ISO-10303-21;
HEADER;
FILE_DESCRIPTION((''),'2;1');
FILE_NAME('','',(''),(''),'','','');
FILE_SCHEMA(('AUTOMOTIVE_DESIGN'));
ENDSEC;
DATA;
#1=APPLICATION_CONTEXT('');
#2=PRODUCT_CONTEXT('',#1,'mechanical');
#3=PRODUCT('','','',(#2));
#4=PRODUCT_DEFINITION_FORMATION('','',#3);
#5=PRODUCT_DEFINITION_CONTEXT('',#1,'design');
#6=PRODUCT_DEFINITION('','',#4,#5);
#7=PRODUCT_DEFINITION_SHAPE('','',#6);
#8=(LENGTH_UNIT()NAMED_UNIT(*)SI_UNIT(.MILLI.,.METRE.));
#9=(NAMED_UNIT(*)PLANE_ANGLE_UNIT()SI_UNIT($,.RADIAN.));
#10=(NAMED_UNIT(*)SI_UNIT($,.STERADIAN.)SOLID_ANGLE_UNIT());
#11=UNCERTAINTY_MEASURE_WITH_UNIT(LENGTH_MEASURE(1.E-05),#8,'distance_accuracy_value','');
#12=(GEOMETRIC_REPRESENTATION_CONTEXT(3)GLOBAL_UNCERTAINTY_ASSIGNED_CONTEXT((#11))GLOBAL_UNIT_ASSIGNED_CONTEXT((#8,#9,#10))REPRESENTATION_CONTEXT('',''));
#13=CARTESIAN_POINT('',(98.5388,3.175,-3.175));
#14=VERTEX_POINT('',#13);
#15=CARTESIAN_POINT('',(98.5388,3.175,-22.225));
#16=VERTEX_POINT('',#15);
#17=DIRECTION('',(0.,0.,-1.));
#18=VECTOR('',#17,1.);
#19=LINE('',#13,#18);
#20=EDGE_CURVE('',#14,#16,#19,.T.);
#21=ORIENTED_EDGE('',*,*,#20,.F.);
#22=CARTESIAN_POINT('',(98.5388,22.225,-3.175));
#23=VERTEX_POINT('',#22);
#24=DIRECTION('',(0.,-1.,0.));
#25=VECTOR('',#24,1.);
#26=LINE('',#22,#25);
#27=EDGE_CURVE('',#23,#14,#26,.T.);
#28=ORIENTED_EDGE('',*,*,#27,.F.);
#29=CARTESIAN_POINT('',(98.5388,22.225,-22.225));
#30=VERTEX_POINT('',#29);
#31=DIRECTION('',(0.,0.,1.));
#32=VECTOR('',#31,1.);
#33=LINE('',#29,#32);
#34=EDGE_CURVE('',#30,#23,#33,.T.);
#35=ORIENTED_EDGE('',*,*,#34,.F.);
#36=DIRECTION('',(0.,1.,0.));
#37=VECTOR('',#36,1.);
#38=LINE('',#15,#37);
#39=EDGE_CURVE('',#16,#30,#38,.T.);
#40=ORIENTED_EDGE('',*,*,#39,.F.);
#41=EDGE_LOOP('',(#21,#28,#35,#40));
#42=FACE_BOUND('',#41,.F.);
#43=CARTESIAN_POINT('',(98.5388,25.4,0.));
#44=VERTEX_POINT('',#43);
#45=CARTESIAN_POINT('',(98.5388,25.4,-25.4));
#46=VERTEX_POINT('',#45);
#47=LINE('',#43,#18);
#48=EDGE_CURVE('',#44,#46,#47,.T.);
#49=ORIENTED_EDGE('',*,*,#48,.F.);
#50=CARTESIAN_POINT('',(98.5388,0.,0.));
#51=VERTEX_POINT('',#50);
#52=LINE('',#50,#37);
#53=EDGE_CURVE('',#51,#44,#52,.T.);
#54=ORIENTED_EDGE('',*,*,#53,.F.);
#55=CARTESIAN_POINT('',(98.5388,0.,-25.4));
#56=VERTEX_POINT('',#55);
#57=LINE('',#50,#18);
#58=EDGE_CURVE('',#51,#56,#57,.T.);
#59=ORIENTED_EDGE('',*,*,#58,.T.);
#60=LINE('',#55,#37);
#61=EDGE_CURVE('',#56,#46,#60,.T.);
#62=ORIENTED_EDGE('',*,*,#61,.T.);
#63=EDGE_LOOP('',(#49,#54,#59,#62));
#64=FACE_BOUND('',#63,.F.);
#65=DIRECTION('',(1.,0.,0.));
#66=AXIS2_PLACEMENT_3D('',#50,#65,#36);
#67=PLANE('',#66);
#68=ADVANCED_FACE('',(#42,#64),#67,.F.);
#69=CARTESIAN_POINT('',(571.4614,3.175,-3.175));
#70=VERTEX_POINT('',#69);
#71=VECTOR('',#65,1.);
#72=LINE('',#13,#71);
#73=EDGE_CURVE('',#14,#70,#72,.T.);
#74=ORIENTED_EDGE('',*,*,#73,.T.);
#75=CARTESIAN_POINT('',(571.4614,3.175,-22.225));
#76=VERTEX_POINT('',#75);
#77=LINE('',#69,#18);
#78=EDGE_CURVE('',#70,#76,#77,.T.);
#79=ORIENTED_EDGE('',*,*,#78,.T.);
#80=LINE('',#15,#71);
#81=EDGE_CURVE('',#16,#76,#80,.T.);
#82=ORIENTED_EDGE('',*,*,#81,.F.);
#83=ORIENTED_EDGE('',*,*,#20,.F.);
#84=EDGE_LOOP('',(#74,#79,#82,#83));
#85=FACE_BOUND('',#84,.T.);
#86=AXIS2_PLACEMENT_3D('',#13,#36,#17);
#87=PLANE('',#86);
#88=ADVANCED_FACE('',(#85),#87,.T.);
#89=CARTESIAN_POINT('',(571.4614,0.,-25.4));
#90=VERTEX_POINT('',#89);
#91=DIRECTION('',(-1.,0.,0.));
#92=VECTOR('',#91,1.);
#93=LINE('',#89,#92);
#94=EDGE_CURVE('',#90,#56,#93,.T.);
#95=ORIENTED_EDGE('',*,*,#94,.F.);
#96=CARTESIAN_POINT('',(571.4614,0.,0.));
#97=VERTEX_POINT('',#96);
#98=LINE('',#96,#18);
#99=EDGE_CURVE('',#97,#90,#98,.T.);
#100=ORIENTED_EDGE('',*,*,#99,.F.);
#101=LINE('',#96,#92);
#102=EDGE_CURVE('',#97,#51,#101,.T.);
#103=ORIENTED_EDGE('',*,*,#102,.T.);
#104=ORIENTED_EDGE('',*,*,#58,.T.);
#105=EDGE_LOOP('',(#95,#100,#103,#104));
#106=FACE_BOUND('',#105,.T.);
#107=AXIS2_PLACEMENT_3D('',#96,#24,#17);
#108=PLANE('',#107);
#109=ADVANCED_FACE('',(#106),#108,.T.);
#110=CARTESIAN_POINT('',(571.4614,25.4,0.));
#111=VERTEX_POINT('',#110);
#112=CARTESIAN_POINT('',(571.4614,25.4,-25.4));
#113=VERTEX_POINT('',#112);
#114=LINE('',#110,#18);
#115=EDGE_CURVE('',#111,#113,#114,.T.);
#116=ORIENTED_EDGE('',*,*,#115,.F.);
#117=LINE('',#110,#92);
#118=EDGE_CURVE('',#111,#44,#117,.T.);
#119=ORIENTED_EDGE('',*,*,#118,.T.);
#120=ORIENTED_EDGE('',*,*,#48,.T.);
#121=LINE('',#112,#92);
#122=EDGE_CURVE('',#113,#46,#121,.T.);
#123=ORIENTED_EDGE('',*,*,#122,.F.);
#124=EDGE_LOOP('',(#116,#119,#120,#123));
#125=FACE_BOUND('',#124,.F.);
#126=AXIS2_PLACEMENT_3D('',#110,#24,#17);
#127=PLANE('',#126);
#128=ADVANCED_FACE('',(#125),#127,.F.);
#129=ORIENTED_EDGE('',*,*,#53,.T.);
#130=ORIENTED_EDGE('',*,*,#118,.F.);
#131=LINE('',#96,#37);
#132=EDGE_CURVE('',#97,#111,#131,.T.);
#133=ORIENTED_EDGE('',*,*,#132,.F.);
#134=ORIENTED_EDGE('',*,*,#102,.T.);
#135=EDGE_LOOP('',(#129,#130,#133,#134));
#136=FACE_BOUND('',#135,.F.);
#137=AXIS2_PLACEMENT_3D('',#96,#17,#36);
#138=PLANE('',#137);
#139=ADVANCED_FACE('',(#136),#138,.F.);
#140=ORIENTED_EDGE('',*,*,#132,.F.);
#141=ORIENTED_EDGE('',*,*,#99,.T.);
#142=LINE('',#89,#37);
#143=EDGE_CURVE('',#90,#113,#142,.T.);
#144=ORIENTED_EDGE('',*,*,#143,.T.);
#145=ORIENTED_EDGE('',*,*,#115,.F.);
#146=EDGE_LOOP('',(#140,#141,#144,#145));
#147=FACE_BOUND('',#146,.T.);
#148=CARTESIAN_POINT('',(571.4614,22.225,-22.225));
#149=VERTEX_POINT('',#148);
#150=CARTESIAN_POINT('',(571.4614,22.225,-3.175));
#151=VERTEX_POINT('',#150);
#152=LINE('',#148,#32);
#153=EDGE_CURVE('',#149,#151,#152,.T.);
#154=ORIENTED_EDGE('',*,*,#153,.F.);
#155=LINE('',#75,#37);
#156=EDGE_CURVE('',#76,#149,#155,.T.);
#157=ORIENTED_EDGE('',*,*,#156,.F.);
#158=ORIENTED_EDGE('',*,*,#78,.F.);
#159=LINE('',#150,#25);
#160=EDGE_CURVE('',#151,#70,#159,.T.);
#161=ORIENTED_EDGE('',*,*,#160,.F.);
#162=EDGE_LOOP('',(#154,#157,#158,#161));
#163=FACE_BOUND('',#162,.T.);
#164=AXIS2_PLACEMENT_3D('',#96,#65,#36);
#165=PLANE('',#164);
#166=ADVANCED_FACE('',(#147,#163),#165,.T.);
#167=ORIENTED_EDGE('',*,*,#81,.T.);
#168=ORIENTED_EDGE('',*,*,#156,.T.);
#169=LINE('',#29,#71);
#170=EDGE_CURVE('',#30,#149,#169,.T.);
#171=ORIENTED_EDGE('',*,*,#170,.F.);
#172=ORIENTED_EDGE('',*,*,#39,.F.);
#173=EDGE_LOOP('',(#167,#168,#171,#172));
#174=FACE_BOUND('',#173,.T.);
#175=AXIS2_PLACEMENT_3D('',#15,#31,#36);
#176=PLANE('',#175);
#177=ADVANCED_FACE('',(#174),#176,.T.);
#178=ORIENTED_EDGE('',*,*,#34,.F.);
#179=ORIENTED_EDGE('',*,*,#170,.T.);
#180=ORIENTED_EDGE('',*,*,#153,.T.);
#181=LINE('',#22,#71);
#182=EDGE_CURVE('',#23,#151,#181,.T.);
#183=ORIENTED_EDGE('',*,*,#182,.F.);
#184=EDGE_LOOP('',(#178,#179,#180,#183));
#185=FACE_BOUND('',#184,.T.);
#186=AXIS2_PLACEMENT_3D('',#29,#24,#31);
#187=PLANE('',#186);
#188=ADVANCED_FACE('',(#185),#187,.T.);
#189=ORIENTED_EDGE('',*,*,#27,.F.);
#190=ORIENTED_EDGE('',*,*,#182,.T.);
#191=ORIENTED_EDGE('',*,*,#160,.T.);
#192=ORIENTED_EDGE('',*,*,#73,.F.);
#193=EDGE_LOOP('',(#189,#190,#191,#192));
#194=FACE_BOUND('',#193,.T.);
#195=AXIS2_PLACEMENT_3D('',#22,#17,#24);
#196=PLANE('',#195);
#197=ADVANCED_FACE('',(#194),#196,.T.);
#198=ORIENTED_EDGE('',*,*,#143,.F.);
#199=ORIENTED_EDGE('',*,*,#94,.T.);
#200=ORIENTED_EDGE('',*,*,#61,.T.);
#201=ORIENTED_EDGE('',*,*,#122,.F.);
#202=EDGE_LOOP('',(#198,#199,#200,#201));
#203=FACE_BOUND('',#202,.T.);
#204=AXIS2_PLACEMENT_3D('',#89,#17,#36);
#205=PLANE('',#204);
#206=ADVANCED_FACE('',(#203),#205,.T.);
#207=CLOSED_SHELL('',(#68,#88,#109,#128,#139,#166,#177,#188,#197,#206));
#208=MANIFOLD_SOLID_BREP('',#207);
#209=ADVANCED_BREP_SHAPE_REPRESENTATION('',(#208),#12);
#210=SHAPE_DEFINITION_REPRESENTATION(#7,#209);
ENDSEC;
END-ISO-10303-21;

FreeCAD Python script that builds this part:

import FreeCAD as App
import Part
import Sketcher
Q = App.Units.Quantity

doc = App.newDocument("Part")
body = doc.addObject("PartDesign::Body", "Body")

sketch1 = body.newObject("Sketcher::SketchObject", "Sketch")
sketch1.AttachmentSupport = (doc.getObject("YZ_Plane"), [""])
sketch1.MapMode = "FlatFace"
sketch1.AttachmentOffset = App.Placement(App.Vector(0, 0, 571.4614), App.Rotation())
sketch1.addGeometry(Part.LineSegment(App.Vector(25, 0, 0), App.Vector(0, 0, 0)), False)
sketch1.addGeometry(Part.LineSegment(App.Vector(0, 0, 0), App.Vector(0, -25, 0)), False)
sketch1.addGeometry(Part.LineSegment(App.Vector(0, -25, 0), App.Vector(25, -25, 0)), False)
sketch1.addGeometry(Part.LineSegment(App.Vector(25, -25, 0), App.Vector(25, 0, 0)), False)
sketch1.addConstraint(Sketcher.Constraint("Coincident", 0, 2, 1, 1))
sketch1.addConstraint(Sketcher.Constraint("Coincident", 1, 2, 2, 1))
sketch1.addConstraint(Sketcher.Constraint("Coincident", 2, 2, 3, 1))
sketch1.addConstraint(Sketcher.Constraint("Coincident", 3, 2, 0, 1))
sketch1.addConstraint(Sketcher.Constraint("Horizontal", 0))
sketch1.addConstraint(Sketcher.Constraint("Vertical", 1))
sketch1.addConstraint(Sketcher.Constraint("Horizontal", 2))
sketch1.addConstraint(Sketcher.Constraint("Vertical", 3))
sketch1.addConstraint(Sketcher.Constraint("Coincident", 0, 2, -1, 1))
sketch1.addConstraint(Sketcher.Constraint("Equal", 2, 1))
sketch1.addConstraint(Sketcher.Constraint("DistanceX", 0, 2, 0, 1, Q("1 in")))
pad1 = body.newObject("PartDesign::Pad", "Pad")
pad1.Profile = sketch1
pad1.Length = Q("18.619 in")
pad1.Reversed = True

sketch2 = body.newObject("Sketcher::SketchObject", "Sketch001")
sketch2.AttachmentSupport = (doc.getObject("YZ_Plane"), [""])
sketch2.MapMode = "FlatFace"
sketch2.AttachmentOffset = App.Placement(App.Vector(0, 0, 98.5388), App.Rotation())
sketch2.addGeometry(Part.LineSegment(App.Vector(3, -22, 0), App.Vector(22, -22, 0)), False)
sketch2.addGeometry(Part.LineSegment(App.Vector(22, -22, 0), App.Vector(22, -3, 0)), False)
sketch2.addGeometry(Part.LineSegment(App.Vector(22, -3, 0), App.Vector(3, -3, 0)), False)
sketch2.addGeometry(Part.LineSegment(App.Vector(3, -3, 0), App.Vector(3, -22, 0)), False)
sketch2.addConstraint(Sketcher.Constraint("Coincident", 0, 2, 1, 1))
sketch2.addConstraint(Sketcher.Constraint("Coincident", 1, 2, 2, 1))
sketch2.addConstraint(Sketcher.Constraint("Coincident", 2, 2, 3, 1))
sketch2.addConstraint(Sketcher.Constraint("Coincident", 3, 2, 0, 1))
sketch2.addConstraint(Sketcher.Constraint("Horizontal", 0))
sketch2.addConstraint(Sketcher.Constraint("Vertical", 1))
sketch2.addConstraint(Sketcher.Constraint("Horizontal", 2))
sketch2.addConstraint(Sketcher.Constraint("Vertical", 3))
sketch2.addConstraint(Sketcher.Constraint("Equal", 2, 1))
sketch2.addConstraint(Sketcher.Constraint("DistanceY", 1, 2, -1, 1, Q("0.125 in")))
sketch2.addConstraint(Sketcher.Constraint("DistanceX", -1, 1, 2, 2, Q("0.125 in")))
sketch2.addConstraint(Sketcher.Constraint("DistanceX", 0, 1, 0, 2, Q("0.75 in")))
pocket1 = body.newObject("PartDesign::Pocket", "Pocket")
pocket1.Profile = sketch2
pocket1.Length = Q("18.619 in")
pocket1.Reversed = True

doc.recompute()
